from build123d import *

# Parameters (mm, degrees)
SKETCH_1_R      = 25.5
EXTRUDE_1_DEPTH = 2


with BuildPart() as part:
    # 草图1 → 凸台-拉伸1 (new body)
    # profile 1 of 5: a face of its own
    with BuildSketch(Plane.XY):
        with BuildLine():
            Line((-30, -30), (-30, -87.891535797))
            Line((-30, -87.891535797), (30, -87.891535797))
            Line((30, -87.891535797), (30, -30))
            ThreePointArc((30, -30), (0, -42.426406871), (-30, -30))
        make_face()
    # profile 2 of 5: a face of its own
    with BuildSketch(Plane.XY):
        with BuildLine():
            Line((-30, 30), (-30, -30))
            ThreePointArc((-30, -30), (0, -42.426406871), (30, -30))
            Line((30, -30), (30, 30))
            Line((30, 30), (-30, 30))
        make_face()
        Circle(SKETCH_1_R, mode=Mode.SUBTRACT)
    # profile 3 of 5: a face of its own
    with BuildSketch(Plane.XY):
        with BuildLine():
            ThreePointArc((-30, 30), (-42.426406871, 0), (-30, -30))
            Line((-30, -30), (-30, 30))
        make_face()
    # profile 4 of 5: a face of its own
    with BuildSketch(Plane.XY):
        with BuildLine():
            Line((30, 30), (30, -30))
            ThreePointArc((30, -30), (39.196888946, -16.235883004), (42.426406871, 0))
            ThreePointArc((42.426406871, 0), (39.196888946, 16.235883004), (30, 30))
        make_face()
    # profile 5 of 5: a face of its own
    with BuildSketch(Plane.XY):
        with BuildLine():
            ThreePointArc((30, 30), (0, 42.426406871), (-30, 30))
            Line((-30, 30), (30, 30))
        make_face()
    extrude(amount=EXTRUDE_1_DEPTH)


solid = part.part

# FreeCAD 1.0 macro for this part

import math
import FreeCAD as App
import Part
import Sketcher

doc = App.newDocument("Part")
body = doc.addObject("PartDesign::Body", "Body")

# Sketch on XY plane
sketch1 = doc.addObject("Sketcher::SketchObject", "Sketch")
body.addObject(sketch1)
sketch1.AttachmentSupport = (doc.XY_Plane, [""])
sketch1.MapMode = "FlatFace"
sketch1.addGeometry(Part.LineSegment(App.Vector(-30, -30, 0), App.Vector(-30, -88, 0)), False)
sketch1.addGeometry(Part.LineSegment(App.Vector(-30, -88, 0), App.Vector(30, -88, 0)), False)
sketch1.addGeometry(Part.LineSegment(App.Vector(30, -88, 0), App.Vector(30, -30, 0)), False)
sketch1.addGeometry(Part.ArcOfCircle(Part.Circle(App.Vector(0, 0, 0), App.Vector(0, 0, 1), 42), math.radians(-45), math.radians(0)), False)
sketch1.addGeometry(Part.ArcOfCircle(Part.Circle(App.Vector(0, 0, 0), App.Vector(0, 0, 1), 42), math.radians(0), math.radians(45)), False)
sketch1.addGeometry(Part.ArcOfCircle(Part.Circle(App.Vector(0, 0, 0), App.Vector(0, 0, 1), 42), math.radians(45), math.radians(135)), False)
sketch1.addGeometry(Part.ArcOfCircle(Part.Circle(App.Vector(0, 0, 0), App.Vector(0, 0, 1), 42), math.radians(135), math.radians(225)), False)
sketch1.addGeometry(Part.Circle(App.Vector(0, 0, 0), App.Vector(0, 0, 1), 26), False)
sketch1.addConstraint(Sketcher.Constraint("Coincident", 0, 2, 1, 1))
sketch1.addConstraint(Sketcher.Constraint("Coincident", 1, 2, 2, 1))
sketch1.addConstraint(Sketcher.Constraint("Coincident", 2, 2, 3, 1))
sketch1.addConstraint(Sketcher.Constraint("Tangent", 3, 2, 4, 1))
sketch1.addConstraint(Sketcher.Constraint("Tangent", 4, 2, 5, 1))
sketch1.addConstraint(Sketcher.Constraint("Tangent", 5, 2, 6, 1))
sketch1.addConstraint(Sketcher.Constraint("Coincident", 6, 2, 0, 1))
sketch1.addConstraint(Sketcher.Constraint("Vertical", 0))
sketch1.addConstraint(Sketcher.Constraint("Horizontal", 1))
sketch1.addConstraint(Sketcher.Constraint("Vertical", 2))
sketch1.addConstraint(Sketcher.Constraint("Coincident", 3, 3, -1, 1))
sketch1.addConstraint(Sketcher.Constraint("Coincident", 5, 3, -1, 1))
sketch1.addConstraint(Sketcher.Constraint("Coincident", 7, 3, -1, 1))
sketch1.addConstraint(Sketcher.Constraint("Equal", 5, 6))
sketch1.addConstraint(Sketcher.Constraint("PointOnObject", 3, 2, -1))
sketch1.addConstraint(Sketcher.Constraint("Horizontal", 4, 2, 5, 2))
sketch1.addConstraint(Sketcher.Constraint("Horizontal", 2, 2, 6, 2))
sketch1.addConstraint(Sketcher.Constraint("Vertical", 2, 2, 4, 2))
sketch1.addConstraint(Sketcher.Constraint("Diameter", 7, 51.0))
sketch1.addConstraint(Sketcher.Constraint("DistanceX", 1, 1, 1, 2, 60.0))
sketch1.addConstraint(Sketcher.Constraint("DistanceY", 2, 2, -1, 1, 30.0))
sketch1.addConstraint(Sketcher.Constraint("DistanceY", 0, 2, 0, 1, 57.891536))
pad1 = doc.addObject("PartDesign::Pad", "Pad")
body.addObject(pad1)
pad1.Profile = sketch1
pad1.Length = 2

doc.recompute()
